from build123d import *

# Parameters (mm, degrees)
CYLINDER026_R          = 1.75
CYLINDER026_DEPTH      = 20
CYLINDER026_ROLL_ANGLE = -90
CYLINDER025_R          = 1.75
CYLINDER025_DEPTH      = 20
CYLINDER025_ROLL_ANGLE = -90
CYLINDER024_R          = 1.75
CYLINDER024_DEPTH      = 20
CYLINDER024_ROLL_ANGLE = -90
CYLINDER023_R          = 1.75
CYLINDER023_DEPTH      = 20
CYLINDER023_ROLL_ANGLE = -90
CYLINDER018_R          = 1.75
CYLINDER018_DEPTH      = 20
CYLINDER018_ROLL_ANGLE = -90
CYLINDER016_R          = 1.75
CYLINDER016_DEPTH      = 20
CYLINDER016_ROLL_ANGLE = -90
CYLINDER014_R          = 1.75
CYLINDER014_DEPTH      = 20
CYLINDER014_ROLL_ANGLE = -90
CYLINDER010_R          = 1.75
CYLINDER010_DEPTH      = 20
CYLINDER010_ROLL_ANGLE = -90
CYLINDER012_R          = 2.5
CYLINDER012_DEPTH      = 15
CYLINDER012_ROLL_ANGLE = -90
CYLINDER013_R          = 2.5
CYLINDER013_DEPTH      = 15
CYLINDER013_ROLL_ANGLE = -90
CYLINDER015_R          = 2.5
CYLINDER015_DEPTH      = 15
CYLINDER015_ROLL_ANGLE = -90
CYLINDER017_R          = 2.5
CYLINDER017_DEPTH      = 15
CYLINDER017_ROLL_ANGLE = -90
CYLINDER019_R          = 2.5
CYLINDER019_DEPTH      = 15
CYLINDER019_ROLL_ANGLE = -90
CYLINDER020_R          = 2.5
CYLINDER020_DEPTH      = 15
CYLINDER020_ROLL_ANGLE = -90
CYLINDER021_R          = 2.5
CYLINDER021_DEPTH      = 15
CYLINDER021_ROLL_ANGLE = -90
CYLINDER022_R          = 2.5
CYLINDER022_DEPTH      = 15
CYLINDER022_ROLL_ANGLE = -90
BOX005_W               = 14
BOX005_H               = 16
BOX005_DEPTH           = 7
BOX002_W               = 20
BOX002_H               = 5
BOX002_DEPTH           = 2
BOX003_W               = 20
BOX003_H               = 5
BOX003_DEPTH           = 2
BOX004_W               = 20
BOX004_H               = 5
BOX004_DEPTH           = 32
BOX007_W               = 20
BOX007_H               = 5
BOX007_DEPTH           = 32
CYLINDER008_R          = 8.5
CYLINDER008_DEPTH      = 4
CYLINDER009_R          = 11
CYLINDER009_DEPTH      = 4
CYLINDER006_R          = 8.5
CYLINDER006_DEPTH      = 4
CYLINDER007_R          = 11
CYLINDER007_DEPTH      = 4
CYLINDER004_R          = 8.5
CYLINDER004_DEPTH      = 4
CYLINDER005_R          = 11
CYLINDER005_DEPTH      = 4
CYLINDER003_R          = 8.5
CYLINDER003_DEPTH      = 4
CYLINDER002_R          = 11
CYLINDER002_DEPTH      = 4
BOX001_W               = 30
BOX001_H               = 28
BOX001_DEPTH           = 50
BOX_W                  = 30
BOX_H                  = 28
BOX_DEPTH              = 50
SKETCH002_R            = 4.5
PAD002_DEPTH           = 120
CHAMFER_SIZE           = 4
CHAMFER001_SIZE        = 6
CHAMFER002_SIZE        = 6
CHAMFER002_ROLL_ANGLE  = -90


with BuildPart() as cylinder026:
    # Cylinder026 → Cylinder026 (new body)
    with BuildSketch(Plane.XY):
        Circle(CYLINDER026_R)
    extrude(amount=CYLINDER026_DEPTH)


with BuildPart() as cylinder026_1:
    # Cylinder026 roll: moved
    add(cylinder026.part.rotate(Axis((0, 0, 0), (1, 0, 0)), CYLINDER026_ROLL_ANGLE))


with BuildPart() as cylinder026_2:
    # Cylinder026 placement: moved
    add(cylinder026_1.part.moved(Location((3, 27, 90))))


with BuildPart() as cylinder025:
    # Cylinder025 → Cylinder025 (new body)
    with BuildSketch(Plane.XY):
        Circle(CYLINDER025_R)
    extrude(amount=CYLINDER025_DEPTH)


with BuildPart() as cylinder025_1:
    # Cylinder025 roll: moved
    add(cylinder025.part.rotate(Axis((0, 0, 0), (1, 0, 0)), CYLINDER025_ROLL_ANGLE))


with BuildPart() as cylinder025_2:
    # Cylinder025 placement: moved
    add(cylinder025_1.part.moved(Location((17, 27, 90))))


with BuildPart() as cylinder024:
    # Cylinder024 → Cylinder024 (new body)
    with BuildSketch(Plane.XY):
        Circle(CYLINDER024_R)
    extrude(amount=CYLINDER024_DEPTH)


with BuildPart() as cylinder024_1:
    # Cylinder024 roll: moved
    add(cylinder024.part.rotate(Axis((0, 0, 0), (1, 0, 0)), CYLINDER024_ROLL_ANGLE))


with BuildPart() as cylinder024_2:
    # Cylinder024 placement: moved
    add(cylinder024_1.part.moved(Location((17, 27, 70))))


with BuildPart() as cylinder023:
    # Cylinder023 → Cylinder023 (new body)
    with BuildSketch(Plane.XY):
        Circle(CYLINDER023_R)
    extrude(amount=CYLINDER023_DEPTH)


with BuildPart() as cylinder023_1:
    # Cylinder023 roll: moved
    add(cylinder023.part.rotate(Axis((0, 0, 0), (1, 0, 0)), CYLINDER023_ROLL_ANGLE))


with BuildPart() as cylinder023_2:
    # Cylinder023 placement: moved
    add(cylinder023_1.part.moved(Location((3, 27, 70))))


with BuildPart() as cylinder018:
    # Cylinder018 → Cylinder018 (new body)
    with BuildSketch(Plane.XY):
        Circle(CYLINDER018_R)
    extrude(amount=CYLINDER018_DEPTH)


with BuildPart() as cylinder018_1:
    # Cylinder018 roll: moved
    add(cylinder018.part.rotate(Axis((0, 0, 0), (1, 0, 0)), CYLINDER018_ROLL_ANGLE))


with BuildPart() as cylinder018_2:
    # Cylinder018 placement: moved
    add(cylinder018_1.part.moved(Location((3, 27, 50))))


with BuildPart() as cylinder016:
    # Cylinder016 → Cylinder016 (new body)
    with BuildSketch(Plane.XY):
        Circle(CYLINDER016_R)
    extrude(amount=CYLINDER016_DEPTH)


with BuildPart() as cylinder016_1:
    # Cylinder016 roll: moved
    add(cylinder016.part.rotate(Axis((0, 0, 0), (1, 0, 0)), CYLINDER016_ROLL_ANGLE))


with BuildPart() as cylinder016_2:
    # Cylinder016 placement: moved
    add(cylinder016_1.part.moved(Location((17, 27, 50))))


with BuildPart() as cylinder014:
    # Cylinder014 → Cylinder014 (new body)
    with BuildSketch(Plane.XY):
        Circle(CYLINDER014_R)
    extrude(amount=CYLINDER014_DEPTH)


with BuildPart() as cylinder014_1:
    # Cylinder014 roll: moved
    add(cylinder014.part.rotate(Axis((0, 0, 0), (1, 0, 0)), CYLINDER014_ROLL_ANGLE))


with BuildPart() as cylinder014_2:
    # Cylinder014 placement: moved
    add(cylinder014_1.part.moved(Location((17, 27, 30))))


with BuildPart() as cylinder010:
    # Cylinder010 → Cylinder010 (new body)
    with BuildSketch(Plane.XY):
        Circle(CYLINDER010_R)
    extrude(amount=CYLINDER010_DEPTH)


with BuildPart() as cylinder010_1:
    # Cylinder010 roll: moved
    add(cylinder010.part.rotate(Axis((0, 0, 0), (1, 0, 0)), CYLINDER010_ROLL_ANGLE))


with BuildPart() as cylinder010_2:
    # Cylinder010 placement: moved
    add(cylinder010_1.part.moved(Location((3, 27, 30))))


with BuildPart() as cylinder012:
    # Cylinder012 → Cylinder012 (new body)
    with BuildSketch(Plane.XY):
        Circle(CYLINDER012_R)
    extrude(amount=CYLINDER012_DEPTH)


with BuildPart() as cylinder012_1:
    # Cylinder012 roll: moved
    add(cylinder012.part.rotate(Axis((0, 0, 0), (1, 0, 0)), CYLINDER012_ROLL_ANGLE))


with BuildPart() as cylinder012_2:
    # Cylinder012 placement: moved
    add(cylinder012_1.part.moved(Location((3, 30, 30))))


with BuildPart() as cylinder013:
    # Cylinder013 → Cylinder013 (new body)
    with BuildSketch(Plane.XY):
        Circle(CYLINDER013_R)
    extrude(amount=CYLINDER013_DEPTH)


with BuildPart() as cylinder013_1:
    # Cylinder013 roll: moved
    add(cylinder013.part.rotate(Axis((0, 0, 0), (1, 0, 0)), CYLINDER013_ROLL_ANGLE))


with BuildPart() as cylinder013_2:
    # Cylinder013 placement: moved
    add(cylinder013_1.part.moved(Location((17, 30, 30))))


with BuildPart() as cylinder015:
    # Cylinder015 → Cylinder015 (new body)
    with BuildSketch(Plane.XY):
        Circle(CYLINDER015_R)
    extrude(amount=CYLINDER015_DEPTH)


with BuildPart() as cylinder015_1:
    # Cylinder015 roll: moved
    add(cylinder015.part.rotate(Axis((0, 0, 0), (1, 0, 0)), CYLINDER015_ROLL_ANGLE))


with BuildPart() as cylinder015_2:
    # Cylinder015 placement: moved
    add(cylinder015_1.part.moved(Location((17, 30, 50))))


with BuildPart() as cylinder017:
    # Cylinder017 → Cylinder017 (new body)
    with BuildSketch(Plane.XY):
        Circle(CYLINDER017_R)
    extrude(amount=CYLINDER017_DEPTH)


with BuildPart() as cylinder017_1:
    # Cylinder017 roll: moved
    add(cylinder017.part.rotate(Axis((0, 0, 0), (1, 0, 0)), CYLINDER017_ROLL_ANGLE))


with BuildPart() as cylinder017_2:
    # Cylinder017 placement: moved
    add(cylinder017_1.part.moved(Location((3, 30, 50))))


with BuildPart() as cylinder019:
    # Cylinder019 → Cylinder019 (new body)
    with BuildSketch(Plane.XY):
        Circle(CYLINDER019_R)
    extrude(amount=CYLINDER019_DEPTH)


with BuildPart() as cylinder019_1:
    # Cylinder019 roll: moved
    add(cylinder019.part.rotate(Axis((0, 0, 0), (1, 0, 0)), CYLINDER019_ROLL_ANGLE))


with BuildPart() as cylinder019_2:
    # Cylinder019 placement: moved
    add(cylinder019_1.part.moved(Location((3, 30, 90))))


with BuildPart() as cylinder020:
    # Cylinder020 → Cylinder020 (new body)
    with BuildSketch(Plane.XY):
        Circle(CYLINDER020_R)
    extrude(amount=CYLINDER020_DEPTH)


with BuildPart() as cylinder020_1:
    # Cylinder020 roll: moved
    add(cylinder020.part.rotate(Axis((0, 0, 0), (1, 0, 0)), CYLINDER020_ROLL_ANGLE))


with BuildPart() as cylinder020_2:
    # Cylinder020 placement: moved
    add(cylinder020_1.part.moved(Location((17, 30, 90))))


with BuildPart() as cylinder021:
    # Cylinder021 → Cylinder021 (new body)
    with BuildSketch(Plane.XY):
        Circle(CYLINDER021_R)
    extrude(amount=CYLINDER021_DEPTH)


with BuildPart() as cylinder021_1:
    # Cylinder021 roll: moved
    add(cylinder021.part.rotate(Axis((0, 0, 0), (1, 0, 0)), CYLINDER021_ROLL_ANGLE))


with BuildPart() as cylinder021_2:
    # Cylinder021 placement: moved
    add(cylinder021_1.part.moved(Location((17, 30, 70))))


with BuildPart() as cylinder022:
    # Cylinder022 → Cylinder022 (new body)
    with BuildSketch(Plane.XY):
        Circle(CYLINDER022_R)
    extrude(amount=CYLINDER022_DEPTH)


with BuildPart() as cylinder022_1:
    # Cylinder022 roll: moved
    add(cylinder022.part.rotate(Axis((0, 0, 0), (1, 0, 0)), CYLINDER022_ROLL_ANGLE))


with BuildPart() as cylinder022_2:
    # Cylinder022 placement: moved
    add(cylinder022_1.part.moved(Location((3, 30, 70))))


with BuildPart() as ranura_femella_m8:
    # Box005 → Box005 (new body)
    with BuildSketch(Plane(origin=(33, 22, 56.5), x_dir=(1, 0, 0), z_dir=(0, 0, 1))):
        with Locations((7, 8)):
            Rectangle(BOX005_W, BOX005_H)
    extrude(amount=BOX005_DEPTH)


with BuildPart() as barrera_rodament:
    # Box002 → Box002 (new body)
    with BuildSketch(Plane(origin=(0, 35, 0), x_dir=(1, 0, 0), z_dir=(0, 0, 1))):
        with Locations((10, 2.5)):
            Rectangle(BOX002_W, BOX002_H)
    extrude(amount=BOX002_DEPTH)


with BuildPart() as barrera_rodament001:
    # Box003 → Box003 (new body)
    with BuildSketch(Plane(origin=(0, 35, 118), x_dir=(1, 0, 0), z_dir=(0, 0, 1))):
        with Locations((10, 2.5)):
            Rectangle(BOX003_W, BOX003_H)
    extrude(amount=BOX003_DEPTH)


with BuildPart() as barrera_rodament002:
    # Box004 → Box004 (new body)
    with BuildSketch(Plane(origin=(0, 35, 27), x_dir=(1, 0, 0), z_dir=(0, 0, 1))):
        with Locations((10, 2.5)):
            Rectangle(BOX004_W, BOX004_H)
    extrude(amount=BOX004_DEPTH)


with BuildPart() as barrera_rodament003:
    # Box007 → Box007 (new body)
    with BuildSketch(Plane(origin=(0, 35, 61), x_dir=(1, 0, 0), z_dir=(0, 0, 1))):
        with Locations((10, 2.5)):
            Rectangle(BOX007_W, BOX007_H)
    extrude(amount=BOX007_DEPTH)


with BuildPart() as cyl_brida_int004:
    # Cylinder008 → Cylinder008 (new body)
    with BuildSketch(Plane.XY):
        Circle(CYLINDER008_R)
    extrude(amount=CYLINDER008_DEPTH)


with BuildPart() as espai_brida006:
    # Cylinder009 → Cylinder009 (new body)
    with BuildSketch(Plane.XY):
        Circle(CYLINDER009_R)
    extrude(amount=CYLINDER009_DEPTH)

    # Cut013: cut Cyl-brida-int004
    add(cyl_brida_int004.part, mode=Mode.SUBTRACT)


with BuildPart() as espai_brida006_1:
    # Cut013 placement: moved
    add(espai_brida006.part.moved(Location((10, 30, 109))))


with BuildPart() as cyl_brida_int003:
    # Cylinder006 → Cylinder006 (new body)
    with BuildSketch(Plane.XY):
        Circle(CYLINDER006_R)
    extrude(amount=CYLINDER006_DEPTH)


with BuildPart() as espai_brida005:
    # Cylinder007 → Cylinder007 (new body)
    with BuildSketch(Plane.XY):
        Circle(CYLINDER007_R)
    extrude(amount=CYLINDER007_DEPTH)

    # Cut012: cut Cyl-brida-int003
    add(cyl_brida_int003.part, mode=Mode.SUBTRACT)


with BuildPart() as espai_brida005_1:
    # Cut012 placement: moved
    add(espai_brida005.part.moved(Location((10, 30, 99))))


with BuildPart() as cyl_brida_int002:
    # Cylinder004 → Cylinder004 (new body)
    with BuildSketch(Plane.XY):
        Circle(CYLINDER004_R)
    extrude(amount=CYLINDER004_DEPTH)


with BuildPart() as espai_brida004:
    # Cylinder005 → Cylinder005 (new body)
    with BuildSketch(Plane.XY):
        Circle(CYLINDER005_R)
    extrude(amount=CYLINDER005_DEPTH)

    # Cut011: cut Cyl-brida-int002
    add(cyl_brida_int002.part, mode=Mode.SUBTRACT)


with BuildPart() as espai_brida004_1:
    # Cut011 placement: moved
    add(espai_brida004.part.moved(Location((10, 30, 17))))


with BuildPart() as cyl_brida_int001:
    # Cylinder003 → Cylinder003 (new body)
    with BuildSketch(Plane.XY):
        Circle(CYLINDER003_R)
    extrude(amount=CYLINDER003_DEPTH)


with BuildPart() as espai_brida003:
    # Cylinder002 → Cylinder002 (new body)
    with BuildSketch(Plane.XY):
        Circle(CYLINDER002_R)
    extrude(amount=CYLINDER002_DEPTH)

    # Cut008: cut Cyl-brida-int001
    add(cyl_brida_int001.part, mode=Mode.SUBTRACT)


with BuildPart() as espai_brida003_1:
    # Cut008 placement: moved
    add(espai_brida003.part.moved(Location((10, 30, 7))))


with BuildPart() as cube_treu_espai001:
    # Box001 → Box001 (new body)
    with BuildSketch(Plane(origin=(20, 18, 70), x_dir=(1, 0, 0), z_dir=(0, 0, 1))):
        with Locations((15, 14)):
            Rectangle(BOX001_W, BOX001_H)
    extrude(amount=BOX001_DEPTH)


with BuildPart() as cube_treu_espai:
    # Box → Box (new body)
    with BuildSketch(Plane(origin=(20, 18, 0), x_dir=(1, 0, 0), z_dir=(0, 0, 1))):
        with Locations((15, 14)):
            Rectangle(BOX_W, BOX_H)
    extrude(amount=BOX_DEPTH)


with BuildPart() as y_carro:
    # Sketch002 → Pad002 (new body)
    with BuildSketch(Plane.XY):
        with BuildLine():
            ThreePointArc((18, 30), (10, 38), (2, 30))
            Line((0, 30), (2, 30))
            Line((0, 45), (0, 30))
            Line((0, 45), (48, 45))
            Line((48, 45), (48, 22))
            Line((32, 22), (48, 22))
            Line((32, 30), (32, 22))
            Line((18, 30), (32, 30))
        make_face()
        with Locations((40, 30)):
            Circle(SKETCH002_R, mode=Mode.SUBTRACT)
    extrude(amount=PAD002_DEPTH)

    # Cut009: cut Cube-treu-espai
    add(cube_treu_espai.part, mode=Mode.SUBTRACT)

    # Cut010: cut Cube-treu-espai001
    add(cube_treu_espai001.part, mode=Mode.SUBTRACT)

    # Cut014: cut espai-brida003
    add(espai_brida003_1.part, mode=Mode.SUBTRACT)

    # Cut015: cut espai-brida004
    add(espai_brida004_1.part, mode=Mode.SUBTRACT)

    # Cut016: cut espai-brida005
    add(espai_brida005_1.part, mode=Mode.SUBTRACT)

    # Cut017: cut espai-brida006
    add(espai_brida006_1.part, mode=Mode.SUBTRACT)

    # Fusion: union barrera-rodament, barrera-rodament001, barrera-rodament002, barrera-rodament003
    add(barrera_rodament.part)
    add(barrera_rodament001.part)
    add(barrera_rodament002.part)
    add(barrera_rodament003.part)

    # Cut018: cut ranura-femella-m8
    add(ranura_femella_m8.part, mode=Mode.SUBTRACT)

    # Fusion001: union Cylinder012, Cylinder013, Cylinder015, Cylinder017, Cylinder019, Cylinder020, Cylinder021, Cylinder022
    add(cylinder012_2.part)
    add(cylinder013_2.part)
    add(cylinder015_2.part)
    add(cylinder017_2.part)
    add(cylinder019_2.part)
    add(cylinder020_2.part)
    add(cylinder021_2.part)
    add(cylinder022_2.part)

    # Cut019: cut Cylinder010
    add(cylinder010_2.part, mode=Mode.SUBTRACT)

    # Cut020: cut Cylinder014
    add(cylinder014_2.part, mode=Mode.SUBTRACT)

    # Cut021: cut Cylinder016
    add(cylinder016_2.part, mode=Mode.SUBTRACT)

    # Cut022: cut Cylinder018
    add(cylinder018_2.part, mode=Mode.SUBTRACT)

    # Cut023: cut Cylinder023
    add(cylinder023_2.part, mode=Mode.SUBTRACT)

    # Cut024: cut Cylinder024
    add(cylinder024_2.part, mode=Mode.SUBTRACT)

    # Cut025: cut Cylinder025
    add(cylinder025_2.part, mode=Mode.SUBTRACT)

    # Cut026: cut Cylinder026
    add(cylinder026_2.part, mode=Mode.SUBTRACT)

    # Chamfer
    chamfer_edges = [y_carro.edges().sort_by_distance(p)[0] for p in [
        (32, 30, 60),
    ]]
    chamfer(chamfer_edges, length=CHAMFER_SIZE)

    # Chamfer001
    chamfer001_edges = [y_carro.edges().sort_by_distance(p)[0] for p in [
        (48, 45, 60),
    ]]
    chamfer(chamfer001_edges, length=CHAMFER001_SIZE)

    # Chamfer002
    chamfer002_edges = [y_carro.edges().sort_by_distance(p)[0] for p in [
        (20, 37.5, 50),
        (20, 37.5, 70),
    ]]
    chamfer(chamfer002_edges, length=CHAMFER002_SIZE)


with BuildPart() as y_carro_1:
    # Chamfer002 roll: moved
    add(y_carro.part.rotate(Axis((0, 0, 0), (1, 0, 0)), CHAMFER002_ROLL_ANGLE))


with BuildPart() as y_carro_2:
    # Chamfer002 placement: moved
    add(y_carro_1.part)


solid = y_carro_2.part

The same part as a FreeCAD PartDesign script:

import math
import FreeCAD as App
import Part
import Sketcher
from FreeCAD import Vector


def edges_at(feature, points):
    """Names of the edges that pass closest to the given points."""
    edges = feature.Shape.Edges
    near = lambda p: min(range(len(edges)), key=lambda i: edges[i].distToShape(Part.Vertex(*p))[0])
    return sorted({f"Edge{near(p) + 1}" for p in points})

doc = App.newDocument("Part")
body = doc.addObject("PartDesign::Body", "Body")

sketch1 = body.newObject("Sketcher::SketchObject", "Sketch")
sketch1.AttachmentSupport = (doc.getObject("XY_Plane"), [""])
sketch1.MapMode = "FlatFace"
sketch1.addGeometry(Part.Circle(Vector(0, 0, 0), Vector(0, 0, 1), 1.75), False)
sketch1.addConstraint([
    Sketcher.Constraint("Coincident", 0, 3, -1, 1),
    Sketcher.Constraint("Diameter", 0, 3.5),
])
pad1 = body.newObject("PartDesign::Pad", "Pad")
pad1.Profile = sketch1
pad1.Length = 20
body2 = doc.addObject("PartDesign::Body", "Body001")
doc.recompute()

body.Placement = App.Placement(Vector(0, 0, 0), App.Rotation(Vector(1, 0, 0), 270))
boolean = body2.newObject("PartDesign::Boolean", "Boolean")
boolean.Type = "Fuse"
boolean.addObjects([body])
body3 = doc.addObject("PartDesign::Body", "Body002")
doc.recompute()

body2.Placement = App.Placement(Vector(3, 27, 90), App.Rotation(Vector(0, 0, 1), 0))
boolean2 = body3.newObject("PartDesign::Boolean", "Boolean001")
boolean2.Type = "Fuse"
boolean2.addObjects([body2])
body4 = doc.addObject("PartDesign::Body", "Body003")

sketch2 = body4.newObject("Sketcher::SketchObject", "Sketch001")
sketch2.AttachmentSupport = (doc.getObject("XY_Plane003"), [""])
sketch2.MapMode = "FlatFace"
sketch2.addGeometry(Part.Circle(Vector(0, 0, 0), Vector(0, 0, 1), 1.75), False)
sketch2.addConstraint([
    Sketcher.Constraint("Coincident", 0, 3, -1, 1),
    Sketcher.Constraint("Diameter", 0, 3.5),
])
pad2 = body4.newObject("PartDesign::Pad", "Pad001")
pad2.Profile = sketch2
pad2.Length = 20
body5 = doc.addObject("PartDesign::Body", "Body004")
doc.recompute()

body4.Placement = App.Placement(Vector(0, 0, 0), App.Rotation(Vector(1, 0, 0), 270))
boolean3 = body5.newObject("PartDesign::Boolean", "Boolean002")
boolean3.Type = "Fuse"
boolean3.addObjects([body4])
body6 = doc.addObject("PartDesign::Body", "Body005")
doc.recompute()

body5.Placement = App.Placement(Vector(17, 27, 90), App.Rotation(Vector(0, 0, 1), 0))
boolean4 = body6.newObject("PartDesign::Boolean", "Boolean003")
boolean4.Type = "Fuse"
boolean4.addObjects([body5])
body7 = doc.addObject("PartDesign::Body", "Body006")

sketch3 = body7.newObject("Sketcher::SketchObject", "Sketch002")
sketch3.AttachmentSupport = (doc.getObject("XY_Plane006"), [""])
sketch3.MapMode = "FlatFace"
sketch3.addGeometry(Part.Circle(Vector(0, 0, 0), Vector(0, 0, 1), 1.75), False)
sketch3.addConstraint([
    Sketcher.Constraint("Coincident", 0, 3, -1, 1),
    Sketcher.Constraint("Diameter", 0, 3.5),
])
pad3 = body7.newObject("PartDesign::Pad", "Pad002")
pad3.Profile = sketch3
pad3.Length = 20
body8 = doc.addObject("PartDesign::Body", "Body007")
doc.recompute()

body7.Placement = App.Placement(Vector(0, 0, 0), App.Rotation(Vector(1, 0, 0), 270))
boolean5 = body8.newObject("PartDesign::Boolean", "Boolean004")
boolean5.Type = "Fuse"
boolean5.addObjects([body7])
body9 = doc.addObject("PartDesign::Body", "Body008")
doc.recompute()

body8.Placement = App.Placement(Vector(17, 27, 70), App.Rotation(Vector(0, 0, 1), 0))
boolean6 = body9.newObject("PartDesign::Boolean", "Boolean005")
boolean6.Type = "Fuse"
boolean6.addObjects([body8])
body10 = doc.addObject("PartDesign::Body", "Body009")

sketch4 = body10.newObject("Sketcher::SketchObject", "Sketch003")
sketch4.AttachmentSupport = (doc.getObject("XY_Plane009"), [""])
sketch4.MapMode = "FlatFace"
sketch4.addGeometry(Part.Circle(Vector(0, 0, 0), Vector(0, 0, 1), 1.75), False)
sketch4.addConstraint([
    Sketcher.Constraint("Coincident", 0, 3, -1, 1),
    Sketcher.Constraint("Diameter", 0, 3.5),
])
pad4 = body10.newObject("PartDesign::Pad", "Pad003")
pad4.Profile = sketch4
pad4.Length = 20
body11 = doc.addObject("PartDesign::Body", "Body010")
doc.recompute()

body10.Placement = App.Placement(Vector(0, 0, 0), App.Rotation(Vector(1, 0, 0), 270))
boolean7 = body11.newObject("PartDesign::Boolean", "Boolean006")
boolean7.Type = "Fuse"
boolean7.addObjects([body10])
body12 = doc.addObject("PartDesign::Body", "Body011")
doc.recompute()

body11.Placement = App.Placement(Vector(3, 27, 70), App.Rotation(Vector(0, 0, 1), 0))
boolean8 = body12.newObject("PartDesign::Boolean", "Boolean007")
boolean8.Type = "Fuse"
boolean8.addObjects([body11])
body13 = doc.addObject("PartDesign::Body", "Body012")

sketch5 = body13.newObject("Sketcher::SketchObject", "Sketch004")
sketch5.AttachmentSupport = (doc.getObject("XY_Plane012"), [""])
sketch5.MapMode = "FlatFace"
sketch5.addGeometry(Part.Circle(Vector(0, 0, 0), Vector(0, 0, 1), 1.75), False)
sketch5.addConstraint([
    Sketcher.Constraint("Coincident", 0, 3, -1, 1),
    Sketcher.Constraint("Diameter", 0, 3.5),
])
pad5 = body13.newObject("PartDesign::Pad", "Pad004")
pad5.Profile = sketch5
pad5.Length = 20
body14 = doc.addObject("PartDesign::Body", "Body013")
doc.recompute()

body13.Placement = App.Placement(Vector(0, 0, 0), App.Rotation(Vector(1, 0, 0), 270))
boolean9 = body14.newObject("PartDesign::Boolean", "Boolean008")
boolean9.Type = "Fuse"
boolean9.addObjects([body13])
body15 = doc.addObject("PartDesign::Body", "Body014")
doc.recompute()

body14.Placement = App.Placement(Vector(3, 27, 50), App.Rotation(Vector(0, 0, 1), 0))
boolean10 = body15.newObject("PartDesign::Boolean", "Boolean009")
boolean10.Type = "Fuse"
boolean10.addObjects([body14])
body16 = doc.addObject("PartDesign::Body", "Body015")

sketch6 = body16.newObject("Sketcher::SketchObject", "Sketch005")
sketch6.AttachmentSupport = (doc.getObject("XY_Plane015"), [""])
sketch6.MapMode = "FlatFace"
sketch6.addGeometry(Part.Circle(Vector(0, 0, 0), Vector(0, 0, 1), 1.75), False)
sketch6.addConstraint([
    Sketcher.Constraint("Coincident", 0, 3, -1, 1),
    Sketcher.Constraint("Diameter", 0, 3.5),
])
pad6 = body16.newObject("PartDesign::Pad", "Pad005")
pad6.Profile = sketch6
pad6.Length = 20
body17 = doc.addObject("PartDesign::Body", "Body016")
doc.recompute()

body16.Placement = App.Placement(Vector(0, 0, 0), App.Rotation(Vector(1, 0, 0), 270))
boolean11 = body17.newObject("PartDesign::Boolean", "Boolean010")
boolean11.Type = "Fuse"
boolean11.addObjects([body16])
body18 = doc.addObject("PartDesign::Body", "Body017")
doc.recompute()

body17.Placement = App.Placement(Vector(17, 27, 50), App.Rotation(Vector(0, 0, 1), 0))
boolean12 = body18.newObject("PartDesign::Boolean", "Boolean011")
boolean12.Type = "Fuse"
boolean12.addObjects([body17])
body19 = doc.addObject("PartDesign::Body", "Body018")

sketch7 = body19.newObject("Sketcher::SketchObject", "Sketch006")
sketch7.AttachmentSupport = (doc.getObject("XY_Plane018"), [""])
sketch7.MapMode = "FlatFace"
sketch7.addGeometry(Part.Circle(Vector(0, 0, 0), Vector(0, 0, 1), 1.75), False)
sketch7.addConstraint([
    Sketcher.Constraint("Coincident", 0, 3, -1, 1),
    Sketcher.Constraint("Diameter", 0, 3.5),
])
pad7 = body19.newObject("PartDesign::Pad", "Pad006")
pad7.Profile = sketch7
pad7.Length = 20
body20 = doc.addObject("PartDesign::Body", "Body019")
doc.recompute()

body19.Placement = App.Placement(Vector(0, 0, 0), App.Rotation(Vector(1, 0, 0), 270))
boolean13 = body20.newObject("PartDesign::Boolean", "Boolean012")
boolean13.Type = "Fuse"
boolean13.addObjects([body19])
body21 = doc.addObject("PartDesign::Body", "Body020")
doc.recompute()

body20.Placement = App.Placement(Vector(17, 27, 30), App.Rotation(Vector(0, 0, 1), 0))
boolean14 = body21.newObject("PartDesign::Boolean", "Boolean013")
boolean14.Type = "Fuse"
boolean14.addObjects([body20])
body22 = doc.addObject("PartDesign::Body", "Body021")

sketch8 = body22.newObject("Sketcher::SketchObject", "Sketch007")
sketch8.AttachmentSupport = (doc.getObject("XY_Plane021"), [""])
sketch8.MapMode = "FlatFace"
sketch8.addGeometry(Part.Circle(Vector(0, 0, 0), Vector(0, 0, 1), 1.75), False)
sketch8.addConstraint([
    Sketcher.Constraint("Coincident", 0, 3, -1, 1),
    Sketcher.Constraint("Diameter", 0, 3.5),
])
pad8 = body22.newObject("PartDesign::Pad", "Pad007")
pad8.Profile = sketch8
pad8.Length = 20
body23 = doc.addObject("PartDesign::Body", "Body022")
doc.recompute()

body22.Placement = App.Placement(Vector(0, 0, 0), App.Rotation(Vector(1, 0, 0), 270))
boolean15 = body23.newObject("PartDesign::Boolean", "Boolean014")
boolean15.Type = "Fuse"
boolean15.addObjects([body22])
body24 = doc.addObject("PartDesign::Body", "Body023")
doc.recompute()

body23.Placement = App.Placement(Vector(3, 27, 30), App.Rotation(Vector(0, 0, 1), 0))
boolean16 = body24.newObject("PartDesign::Boolean", "Boolean015")
boolean16.Type = "Fuse"
boolean16.addObjects([body23])
body25 = doc.addObject("PartDesign::Body", "Body024")

sketch9 = body25.newObject("Sketcher::SketchObject", "Sketch008")
sketch9.AttachmentSupport = (doc.getObject("XY_Plane024"), [""])
sketch9.MapMode = "FlatFace"
sketch9.addGeometry(Part.Circle(Vector(0, 0, 0), Vector(0, 0, 1), 2.5), False)
sketch9.addConstraint([
    Sketcher.Constraint("Coincident", 0, 3, -1, 1),
    Sketcher.Constraint("Diameter", 0, 5.0),
])
pad9 = body25.newObject("PartDesign::Pad", "Pad008")
pad9.Profile = sketch9
pad9.Length = 15
body26 = doc.addObject("PartDesign::Body", "Body025")
doc.recompute()

body25.Placement = App.Placement(Vector(0, 0, 0), App.Rotation(Vector(1, 0, 0), 270))
boolean17 = body26.newObject("PartDesign::Boolean", "Boolean016")
boolean17.Type = "Fuse"
boolean17.addObjects([body25])
body27 = doc.addObject("PartDesign::Body", "Body026")
doc.recompute()

body26.Placement = App.Placement(Vector(3, 30, 30), App.Rotation(Vector(0, 0, 1), 0))
boolean18 = body27.newObject("PartDesign::Boolean", "Boolean017")
boolean18.Type = "Fuse"
boolean18.addObjects([body26])
body28 = doc.addObject("PartDesign::Body", "Body027")

sketch10 = body28.newObject("Sketcher::SketchObject", "Sketch009")
sketch10.AttachmentSupport = (doc.getObject("XY_Plane027"), [""])
sketch10.MapMode = "FlatFace"
sketch10.addGeometry(Part.Circle(Vector(0, 0, 0), Vector(0, 0, 1), 2.5), False)
sketch10.addConstraint([
    Sketcher.Constraint("Coincident", 0, 3, -1, 1),
    Sketcher.Constraint("Diameter", 0, 5.0),
])
pad10 = body28.newObject("PartDesign::Pad", "Pad009")
pad10.Profile = sketch10
pad10.Length = 15
body29 = doc.addObject("PartDesign::Body", "Body028")
doc.recompute()

body28.Placement = App.Placement(Vector(0, 0, 0), App.Rotation(Vector(1, 0, 0), 270))
boolean19 = body29.newObject("PartDesign::Boolean", "Boolean018")
boolean19.Type = "Fuse"
boolean19.addObjects([body28])
body30 = doc.addObject("PartDesign::Body", "Body029")
doc.recompute()

body29.Placement = App.Placement(Vector(17, 30, 30), App.Rotation(Vector(0, 0, 1), 0))
boolean20 = body30.newObject("PartDesign::Boolean", "Boolean019")
boolean20.Type = "Fuse"
boolean20.addObjects([body29])
body31 = doc.addObject("PartDesign::Body", "Body030")

sketch11 = body31.newObject("Sketcher::SketchObject", "Sketch010")
sketch11.AttachmentSupport = (doc.getObject("XY_Plane030"), [""])
sketch11.MapMode = "FlatFace"
sketch11.addGeometry(Part.Circle(Vector(0, 0, 0), Vector(0, 0, 1), 2.5), False)
sketch11.addConstraint([
    Sketcher.Constraint("Coincident", 0, 3, -1, 1),
    Sketcher.Constraint("Diameter", 0, 5.0),
])
pad11 = body31.newObject("PartDesign::Pad", "Pad010")
pad11.Profile = sketch11
pad11.Length = 15
body32 = doc.addObject("PartDesign::Body", "Body031")
doc.recompute()

body31.Placement = App.Placement(Vector(0, 0, 0), App.Rotation(Vector(1, 0, 0), 270))
boolean21 = body32.newObject("PartDesign::Boolean", "Boolean020")
boolean21.Type = "Fuse"
boolean21.addObjects([body31])
body33 = doc.addObject("PartDesign::Body", "Body032")
doc.recompute()

body32.Placement = App.Placement(Vector(17, 30, 50), App.Rotation(Vector(0, 0, 1), 0))
boolean22 = body33.newObject("PartDesign::Boolean", "Boolean021")
boolean22.Type = "Fuse"
boolean22.addObjects([body32])
body34 = doc.addObject("PartDesign::Body", "Body033")

sketch12 = body34.newObject("Sketcher::SketchObject", "Sketch011")
sketch12.AttachmentSupport = (doc.getObject("XY_Plane033"), [""])
sketch12.MapMode = "FlatFace"
sketch12.addGeometry(Part.Circle(Vector(0, 0, 0), Vector(0, 0, 1), 2.5), False)
sketch12.addConstraint([
    Sketcher.Constraint("Coincident", 0, 3, -1, 1),
    Sketcher.Constraint("Diameter", 0, 5.0),
])
pad12 = body34.newObject("PartDesign::Pad", "Pad011")
pad12.Profile = sketch12
pad12.Length = 15
body35 = doc.addObject("PartDesign::Body", "Body034")
doc.recompute()

body34.Placement = App.Placement(Vector(0, 0, 0), App.Rotation(Vector(1, 0, 0), 270))
boolean23 = body35.newObject("PartDesign::Boolean", "Boolean022")
boolean23.Type = "Fuse"
boolean23.addObjects([body34])
body36 = doc.addObject("PartDesign::Body", "Body035")
doc.recompute()

body35.Placement = App.Placement(Vector(3, 30, 50), App.Rotation(Vector(0, 0, 1), 0))
boolean24 = body36.newObject("PartDesign::Boolean", "Boolean023")
boolean24.Type = "Fuse"
boolean24.addObjects([body35])
body37 = doc.addObject("PartDesign::Body", "Body036")

sketch13 = body37.newObject("Sketcher::SketchObject", "Sketch012")
sketch13.AttachmentSupport = (doc.getObject("XY_Plane036"), [""])
sketch13.MapMode = "FlatFace"
sketch13.addGeometry(Part.Circle(Vector(0, 0, 0), Vector(0, 0, 1), 2.5), False)
sketch13.addConstraint([
    Sketcher.Constraint("Coincident", 0, 3, -1, 1),
    Sketcher.Constraint("Diameter", 0, 5.0),
])
pad13 = body37.newObject("PartDesign::Pad", "Pad012")
pad13.Profile = sketch13
pad13.Length = 15
body38 = doc.addObject("PartDesign::Body", "Body037")
doc.recompute()

body37.Placement = App.Placement(Vector(0, 0, 0), App.Rotation(Vector(1, 0, 0), 270))
boolean25 = body38.newObject("PartDesign::Boolean", "Boolean024")
boolean25.Type = "Fuse"
boolean25.addObjects([body37])
body39 = doc.addObject("PartDesign::Body", "Body038")
doc.recompute()

body38.Placement = App.Placement(Vector(3, 30, 90), App.Rotation(Vector(0, 0, 1), 0))
boolean26 = body39.newObject("PartDesign::Boolean", "Boolean025")
boolean26.Type = "Fuse"
boolean26.addObjects([body38])
body40 = doc.addObject("PartDesign::Body", "Body039")

sketch14 = body40.newObject("Sketcher::SketchObject", "Sketch013")
sketch14.AttachmentSupport = (doc.getObject("XY_Plane039"), [""])
sketch14.MapMode = "FlatFace"
sketch14.addGeometry(Part.Circle(Vector(0, 0, 0), Vector(0, 0, 1), 2.5), False)
sketch14.addConstraint([
    Sketcher.Constraint("Coincident", 0, 3, -1, 1),
    Sketcher.Constraint("Diameter", 0, 5.0),
])
pad14 = body40.newObject("PartDesign::Pad", "Pad013")
pad14.Profile = sketch14
pad14.Length = 15
body41 = doc.addObject("PartDesign::Body", "Body040")
doc.recompute()

body40.Placement = App.Placement(Vector(0, 0, 0), App.Rotation(Vector(1, 0, 0), 270))
boolean27 = body41.newObject("PartDesign::Boolean", "Boolean026")
boolean27.Type = "Fuse"
boolean27.addObjects([body40])
body42 = doc.addObject("PartDesign::Body", "Body041")
doc.recompute()

body41.Placement = App.Placement(Vector(17, 30, 90), App.Rotation(Vector(0, 0, 1), 0))
boolean28 = body42.newObject("PartDesign::Boolean", "Boolean027")
boolean28.Type = "Fuse"
boolean28.addObjects([body41])
body43 = doc.addObject("PartDesign::Body", "Body042")

sketch15 = body43.newObject("Sketcher::SketchObject", "Sketch014")
sketch15.AttachmentSupport = (doc.getObject("XY_Plane042"), [""])
sketch15.MapMode = "FlatFace"
sketch15.addGeometry(Part.Circle(Vector(0, 0, 0), Vector(0, 0, 1), 2.5), False)
sketch15.addConstraint([
    Sketcher.Constraint("Coincident", 0, 3, -1, 1),
    Sketcher.Constraint("Diameter", 0, 5.0),
])
pad15 = body43.newObject("PartDesign::Pad", "Pad014")
pad15.Profile = sketch15
pad15.Length = 15
body44 = doc.addObject("PartDesign::Body", "Body043")
doc.recompute()

body43.Placement = App.Placement(Vector(0, 0, 0), App.Rotation(Vector(1, 0, 0), 270))
boolean29 = body44.newObject("PartDesign::Boolean", "Boolean028")
boolean29.Type = "Fuse"
boolean29.addObjects([body43])
body45 = doc.addObject("PartDesign::Body", "Body044")
doc.recompute()

body44.Placement = App.Placement(Vector(17, 30, 70), App.Rotation(Vector(0, 0, 1), 0))
boolean30 = body45.newObject("PartDesign::Boolean", "Boolean029")
boolean30.Type = "Fuse"
boolean30.addObjects([body44])
body46 = doc.addObject("PartDesign::Body", "Body045")

sketch16 = body46.newObject("Sketcher::SketchObject", "Sketch015")
sketch16.AttachmentSupport = (doc.getObject("XY_Plane045"), [""])
sketch16.MapMode = "FlatFace"
sketch16.addGeometry(Part.Circle(Vector(0, 0, 0), Vector(0, 0, 1), 2.5), False)
sketch16.addConstraint([
    Sketcher.Constraint("Coincident", 0, 3, -1, 1),
    Sketcher.Constraint("Diameter", 0, 5.0),
])
pad16 = body46.newObject("PartDesign::Pad", "Pad015")
pad16.Profile = sketch16
pad16.Length = 15
body47 = doc.addObject("PartDesign::Body", "Body046")
doc.recompute()

body46.Placement = App.Placement(Vector(0, 0, 0), App.Rotation(Vector(1, 0, 0), 270))
boolean31 = body47.newObject("PartDesign::Boolean", "Boolean030")
boolean31.Type = "Fuse"
boolean31.addObjects([body46])
body48 = doc.addObject("PartDesign::Body", "Body047")
doc.recompute()

body47.Placement = App.Placement(Vector(3, 30, 70), App.Rotation(Vector(0, 0, 1), 0))
boolean32 = body48.newObject("PartDesign::Boolean", "Boolean031")
boolean32.Type = "Fuse"
boolean32.addObjects([body47])
body49 = doc.addObject("PartDesign::Body", "Body048")

sketch17 = body49.newObject("Sketcher::SketchObject", "Sketch016")
sketch17.AttachmentSupport = (doc.getObject("XY_Plane048"), [""])
sketch17.MapMode = "FlatFace"
sketch17.AttachmentOffset = App.Placement(Vector(0, 0, 56.5), App.Rotation())
sketch17.addGeometry([
    Part.LineSegment(Vector(33, 38, 0), Vector(33, 22, 0)),
    Part.LineSegment(Vector(33, 22, 0), Vector(47, 22, 0)),
    Part.LineSegment(Vector(47, 22, 0), Vector(47, 38, 0)),
    Part.LineSegment(Vector(47, 38, 0), Vector(33, 38, 0)),
], False)
sketch17.addConstraint([
    Sketcher.Constraint("Coincident", 0, 2, 1, 1),
    Sketcher.Constraint("Coincident", 1, 2, 2, 1),
    Sketcher.Constraint("Coincident", 2, 2, 3, 1),
    Sketcher.Constraint("Coincident", 3, 2, 0, 1),
    Sketcher.Constraint("Vertical", 0),
    Sketcher.Constraint("Horizontal", 1),
    Sketcher.Constraint("Vertical", 2),
    Sketcher.Constraint("Horizontal", 3),
    Sketcher.Constraint("DistanceX", 1, 1, 1, 2, 14.0),
    Sketcher.Constraint("DistanceY", 0, 2, 0, 1, 16.0),
    Sketcher.Constraint("DistanceX", -1, 1, 0, 2, 33.0),
    Sketcher.Constraint("DistanceY", -1, 1, 0, 2, 22.0),
])
pad17 = body49.newObject("PartDesign::Pad", "Pad016")
pad17.Profile = sketch17
pad17.Length = 7
body50 = doc.addObject("PartDesign::Body", "Body049")

sketch18 = body50.newObject("Sketcher::SketchObject", "Sketch017")
sketch18.AttachmentSupport = (doc.getObject("XY_Plane049"), [""])
sketch18.MapMode = "FlatFace"
sketch18.addGeometry([
    Part.LineSegment(Vector(0, 40, 0), Vector(0, 35, 0)),
    Part.LineSegment(Vector(0, 35, 0), Vector(20, 35, 0)),
    Part.LineSegment(Vector(20, 35, 0), Vector(20, 40, 0)),
    Part.LineSegment(Vector(20, 40, 0), Vector(0, 40, 0)),
], False)
sketch18.addConstraint([
    Sketcher.Constraint("Coincident", 0, 2, 1, 1),
    Sketcher.Constraint("Coincident", 1, 2, 2, 1),
    Sketcher.Constraint("Coincident", 2, 2, 3, 1),
    Sketcher.Constraint("Coincident", 3, 2, 0, 1),
    Sketcher.Constraint("Vertical", 0),
    Sketcher.Constraint("Horizontal", 1),
    Sketcher.Constraint("Vertical", 2),
    Sketcher.Constraint("Horizontal", 3),
    Sketcher.Constraint("PointOnObject", 0, 2, -2),
    Sketcher.Constraint("DistanceX", 1, 1, 1, 2, 20.0),
    Sketcher.Constraint("DistanceY", 0, 2, 0, 1, 5.0),
    Sketcher.Constraint("DistanceY", -1, 1, 0, 2, 35.0),
])
pad18 = body50.newObject("PartDesign::Pad", "Pad017")
pad18.Profile = sketch18
pad18.Length = 2
body51 = doc.addObject("PartDesign::Body", "Body050")

sketch19 = body51.newObject("Sketcher::SketchObject", "Sketch018")
sketch19.AttachmentSupport = (doc.getObject("XY_Plane050"), [""])
sketch19.MapMode = "FlatFace"
sketch19.AttachmentOffset = App.Placement(Vector(0, 0, 118), App.Rotation())
sketch19.addGeometry([
    Part.LineSegment(Vector(0, 40, 0), Vector(0, 35, 0)),
    Part.LineSegment(Vector(0, 35, 0), Vector(20, 35, 0)),
    Part.LineSegment(Vector(20, 35, 0), Vector(20, 40, 0)),
    Part.LineSegment(Vector(20, 40, 0), Vector(0, 40, 0)),
], False)
sketch19.addConstraint([
    Sketcher.Constraint("Coincident", 0, 2, 1, 1),
    Sketcher.Constraint("Coincident", 1, 2, 2, 1),
    Sketcher.Constraint("Coincident", 2, 2, 3, 1),
    Sketcher.Constraint("Coincident", 3, 2, 0, 1),
    Sketcher.Constraint("Vertical", 0),
    Sketcher.Constraint("Horizontal", 1),
    Sketcher.Constraint("Vertical", 2),
    Sketcher.Constraint("Horizontal", 3),
    Sketcher.Constraint("PointOnObject", 0, 2, -2),
    Sketcher.Constraint("DistanceX", 1, 1, 1, 2, 20.0),
    Sketcher.Constraint("DistanceY", 0, 2, 0, 1, 5.0),
    Sketcher.Constraint("DistanceY", -1, 1, 0, 2, 35.0),
])
pad19 = body51.newObject("PartDesign::Pad", "Pad018")
pad19.Profile = sketch19
pad19.Length = 2
body52 = doc.addObject("PartDesign::Body", "Body051")

sketch20 = body52.newObject("Sketcher::SketchObject", "Sketch019")
sketch20.AttachmentSupport = (doc.getObject("XY_Plane051"), [""])
sketch20.MapMode = "FlatFace"
sketch20.AttachmentOffset = App.Placement(Vector(0, 0, 27), App.Rotation())
sketch20.addGeometry([
    Part.LineSegment(Vector(0, 40, 0), Vector(0, 35, 0)),
    Part.LineSegment(Vector(0, 35, 0), Vector(20, 35, 0)),
    Part.LineSegment(Vector(20, 35, 0), Vector(20, 40, 0)),
    Part.LineSegment(Vector(20, 40, 0), Vector(0, 40, 0)),
], False)
sketch20.addConstraint([
    Sketcher.Constraint("Coincident", 0, 2, 1, 1),
    Sketcher.Constraint("Coincident", 1, 2, 2, 1),
    Sketcher.Constraint("Coincident", 2, 2, 3, 1),
    Sketcher.Constraint("Coincident", 3, 2, 0, 1),
    Sketcher.Constraint("Vertical", 0),
    Sketcher.Constraint("Horizontal", 1),
    Sketcher.Constraint("Vertical", 2),
    Sketcher.Constraint("Horizontal", 3),
    Sketcher.Constraint("PointOnObject", 0, 2, -2),
    Sketcher.Constraint("DistanceX", 1, 1, 1, 2, 20.0),
    Sketcher.Constraint("DistanceY", 0, 2, 0, 1, 5.0),
    Sketcher.Constraint("DistanceY", -1, 1, 0, 2, 35.0),
])
pad20 = body52.newObject("PartDesign::Pad", "Pad019")
pad20.Profile = sketch20
pad20.Length = 32
body53 = doc.addObject("PartDesign::Body", "Body052")

sketch21 = body53.newObject("Sketcher::SketchObject", "Sketch020")
sketch21.AttachmentSupport = (doc.getObject("XY_Plane052"), [""])
sketch21.MapMode = "FlatFace"
sketch21.AttachmentOffset = App.Placement(Vector(0, 0, 61), App.Rotation())
sketch21.addGeometry([
    Part.LineSegment(Vector(0, 40, 0), Vector(0, 35, 0)),
    Part.LineSegment(Vector(0, 35, 0), Vector(20, 35, 0)),
    Part.LineSegment(Vector(20, 35, 0), Vector(20, 40, 0)),
    Part.LineSegment(Vector(20, 40, 0), Vector(0, 40, 0)),
], False)
sketch21.addConstraint([
    Sketcher.Constraint("Coincident", 0, 2, 1, 1),
    Sketcher.Constraint("Coincident", 1, 2, 2, 1),
    Sketcher.Constraint("Coincident", 2, 2, 3, 1),
    Sketcher.Constraint("Coincident", 3, 2, 0, 1),
    Sketcher.Constraint("Vertical", 0),
    Sketcher.Constraint("Horizontal", 1),
    Sketcher.Constraint("Vertical", 2),
    Sketcher.Constraint("Horizontal", 3),
    Sketcher.Constraint("PointOnObject", 0, 2, -2),
    Sketcher.Constraint("DistanceX", 1, 1, 1, 2, 20.0),
    Sketcher.Constraint("DistanceY", 0, 2, 0, 1, 5.0),
    Sketcher.Constraint("DistanceY", -1, 1, 0, 2, 35.0),
])
pad21 = body53.newObject("PartDesign::Pad", "Pad020")
pad21.Profile = sketch21
pad21.Length = 32
body54 = doc.addObject("PartDesign::Body", "Body053")

sketch22 = body54.newObject("Sketcher::SketchObject", "Sketch021")
sketch22.AttachmentSupport = (doc.getObject("XY_Plane053"), [""])
sketch22.MapMode = "FlatFace"
sketch22.addGeometry(Part.Circle(Vector(0, 0, 0), Vector(0, 0, 1), 8.5), False)
sketch22.addConstraint([
    Sketcher.Constraint("Coincident", 0, 3, -1, 1),
    Sketcher.Constraint("Diameter", 0, 17.0),
])
pad22 = body54.newObject("PartDesign::Pad", "Pad021")
pad22.Profile = sketch22
pad22.Length = 4
body55 = doc.addObject("PartDesign::Body", "Body054")

sketch23 = body55.newObject("Sketcher::SketchObject", "Sketch022")
sketch23.AttachmentSupport = (doc.getObject("XY_Plane054"), [""])
sketch23.MapMode = "FlatFace"
sketch23.addGeometry(Part.Circle(Vector(0, 0, 0), Vector(0, 0, 1), 11), False)
sketch23.addConstraint([
    Sketcher.Constraint("Coincident", 0, 3, -1, 1),
    Sketcher.Constraint("Diameter", 0, 22.0),
])
pad23 = body55.newObject("PartDesign::Pad", "Pad022")
pad23.Profile = sketch23
pad23.Length = 4
doc.recompute()

boolean33 = body55.newObject("PartDesign::Boolean", "Boolean032")
boolean33.Type = "Cut"
boolean33.addObjects([body54])
body56 = doc.addObject("PartDesign::Body", "Body055")
doc.recompute()

body55.Placement = App.Placement(Vector(10, 30, 109), App.Rotation(Vector(0, 0, 1), 0))
boolean34 = body56.newObject("PartDesign::Boolean", "Boolean033")
boolean34.Type = "Fuse"
boolean34.addObjects([body55])
body57 = doc.addObject("PartDesign::Body", "Body056")

sketch24 = body57.newObject("Sketcher::SketchObject", "Sketch023")
sketch24.AttachmentSupport = (doc.getObject("XY_Plane056"), [""])
sketch24.MapMode = "FlatFace"
sketch24.addGeometry(Part.Circle(Vector(0, 0, 0), Vector(0, 0, 1), 8.5), False)
sketch24.addConstraint([
    Sketcher.Constraint("Coincident", 0, 3, -1, 1),
    Sketcher.Constraint("Diameter", 0, 17.0),
])
pad24 = body57.newObject("PartDesign::Pad", "Pad023")
pad24.Profile = sketch24
pad24.Length = 4
body58 = doc.addObject("PartDesign::Body", "Body057")

sketch25 = body58.newObject("Sketcher::SketchObject", "Sketch024")
sketch25.AttachmentSupport = (doc.getObject("XY_Plane057"), [""])
sketch25.MapMode = "FlatFace"
sketch25.addGeometry(Part.Circle(Vector(0, 0, 0), Vector(0, 0, 1), 11), False)
sketch25.addConstraint([
    Sketcher.Constraint("Coincident", 0, 3, -1, 1),
    Sketcher.Constraint("Diameter", 0, 22.0),
])
pad25 = body58.newObject("PartDesign::Pad", "Pad024")
pad25.Profile = sketch25
pad25.Length = 4
doc.recompute()

boolean35 = body58.newObject("PartDesign::Boolean", "Boolean034")
boolean35.Type = "Cut"
boolean35.addObjects([body57])
body59 = doc.addObject("PartDesign::Body", "Body058")
doc.recompute()

body58.Placement = App.Placement(Vector(10, 30, 99), App.Rotation(Vector(0, 0, 1), 0))
boolean36 = body59.newObject("PartDesign::Boolean", "Boolean035")
boolean36.Type = "Fuse"
boolean36.addObjects([body58])
body60 = doc.addObject("PartDesign::Body", "Body059")

sketch26 = body60.newObject("Sketcher::SketchObject", "Sketch025")
sketch26.AttachmentSupport = (doc.getObject("XY_Plane059"), [""])
sketch26.MapMode = "FlatFace"
sketch26.addGeometry(Part.Circle(Vector(0, 0, 0), Vector(0, 0, 1), 8.5), False)
sketch26.addConstraint([
    Sketcher.Constraint("Coincident", 0, 3, -1, 1),
    Sketcher.Constraint("Diameter", 0, 17.0),
])
pad26 = body60.newObject("PartDesign::Pad", "Pad025")
pad26.Profile = sketch26
pad26.Length = 4
body61 = doc.addObject("PartDesign::Body", "Body060")

sketch27 = body61.newObject("Sketcher::SketchObject", "Sketch026")
sketch27.AttachmentSupport = (doc.getObject("XY_Plane060"), [""])
sketch27.MapMode = "FlatFace"
sketch27.addGeometry(Part.Circle(Vector(0, 0, 0), Vector(0, 0, 1), 11), False)
sketch27.addConstraint([
    Sketcher.Constraint("Coincident", 0, 3, -1, 1),
    Sketcher.Constraint("Diameter", 0, 22.0),
])
pad27 = body61.newObject("PartDesign::Pad", "Pad026")
pad27.Profile = sketch27
pad27.Length = 4
doc.recompute()

boolean37 = body61.newObject("PartDesign::Boolean", "Boolean036")
boolean37.Type = "Cut"
boolean37.addObjects([body60])
body62 = doc.addObject("PartDesign::Body", "Body061")
doc.recompute()

body61.Placement = App.Placement(Vector(10, 30, 17), App.Rotation(Vector(0, 0, 1), 0))
boolean38 = body62.newObject("PartDesign::Boolean", "Boolean037")
boolean38.Type = "Fuse"
boolean38.addObjects([body61])
body63 = doc.addObject("PartDesign::Body", "Body062")

sketch28 = body63.newObject("Sketcher::SketchObject", "Sketch027")
sketch28.AttachmentSupport = (doc.getObject("XY_Plane062"), [""])
sketch28.MapMode = "FlatFace"
sketch28.addGeometry(Part.Circle(Vector(0, 0, 0), Vector(0, 0, 1), 8.5), False)
sketch28.addConstraint([
    Sketcher.Constraint("Coincident", 0, 3, -1, 1),
    Sketcher.Constraint("Diameter", 0, 17.0),
])
pad28 = body63.newObject("PartDesign::Pad", "Pad027")
pad28.Profile = sketch28
pad28.Length = 4
body64 = doc.addObject("PartDesign::Body", "Body063")

sketch29 = body64.newObject("Sketcher::SketchObject", "Sketch028")
sketch29.AttachmentSupport = (doc.getObject("XY_Plane063"), [""])
sketch29.MapMode = "FlatFace"
sketch29.addGeometry(Part.Circle(Vector(0, 0, 0), Vector(0, 0, 1), 11), False)
sketch29.addConstraint([
    Sketcher.Constraint("Coincident", 0, 3, -1, 1),
    Sketcher.Constraint("Diameter", 0, 22.0),
])
pad29 = body64.newObject("PartDesign::Pad", "Pad028")
pad29.Profile = sketch29
pad29.Length = 4
doc.recompute()

boolean39 = body64.newObject("PartDesign::Boolean", "Boolean038")
boolean39.Type = "Cut"
boolean39.addObjects([body63])
body65 = doc.addObject("PartDesign::Body", "Body064")
doc.recompute()

body64.Placement = App.Placement(Vector(10, 30, 7), App.Rotation(Vector(0, 0, 1), 0))
boolean40 = body65.newObject("PartDesign::Boolean", "Boolean039")
boolean40.Type = "Fuse"
boolean40.addObjects([body64])
body66 = doc.addObject("PartDesign::Body", "Body065")

sketch30 = body66.newObject("Sketcher::SketchObject", "Sketch029")
sketch30.AttachmentSupport = (doc.getObject("XY_Plane065"), [""])
sketch30.MapMode = "FlatFace"
sketch30.AttachmentOffset = App.Placement(Vector(0, 0, 70), App.Rotation())
sketch30.addGeometry([
    Part.LineSegment(Vector(20, 46, 0), Vector(20, 18, 0)),
    Part.LineSegment(Vector(20, 18, 0), Vector(50, 18, 0)),
    Part.LineSegment(Vector(50, 18, 0), Vector(50, 46, 0)),
    Part.LineSegment(Vector(50, 46, 0), Vector(20, 46, 0)),
], False)
sketch30.addConstraint([
    Sketcher.Constraint("Coincident", 0, 2, 1, 1),
    Sketcher.Constraint("Coincident", 1, 2, 2, 1),
    Sketcher.Constraint("Coincident", 2, 2, 3, 1),
    Sketcher.Constraint("Coincident", 3, 2, 0, 1),
    Sketcher.Constraint("Vertical", 0),
    Sketcher.Constraint("Horizontal", 1),
    Sketcher.Constraint("Vertical", 2),
    Sketcher.Constraint("Horizontal", 3),
    Sketcher.Constraint("DistanceX", 1, 1, 1, 2, 30.0),
    Sketcher.Constraint("DistanceY", 0, 2, 0, 1, 28.0),
    Sketcher.Constraint("DistanceX", -1, 1, 0, 2, 20.0),
    Sketcher.Constraint("DistanceY", -1, 1, 0, 2, 18.0),
])
pad30 = body66.newObject("PartDesign::Pad", "Pad029")
pad30.Profile = sketch30
pad30.Length = 50
body67 = doc.addObject("PartDesign::Body", "Body066")

sketch31 = body67.newObject("Sketcher::SketchObject", "Sketch030")
sketch31.AttachmentSupport = (doc.getObject("XY_Plane066"), [""])
sketch31.MapMode = "FlatFace"
sketch31.addGeometry([
    Part.LineSegment(Vector(20, 46, 0), Vector(20, 18, 0)),
    Part.LineSegment(Vector(20, 18, 0), Vector(50, 18, 0)),
    Part.LineSegment(Vector(50, 18, 0), Vector(50, 46, 0)),
    Part.LineSegment(Vector(50, 46, 0), Vector(20, 46, 0)),
], False)
sketch31.addConstraint([
    Sketcher.Constraint("Coincident", 0, 2, 1, 1),
    Sketcher.Constraint("Coincident", 1, 2, 2, 1),
    Sketcher.Constraint("Coincident", 2, 2, 3, 1),
    Sketcher.Constraint("Coincident", 3, 2, 0, 1),
    Sketcher.Constraint("Vertical", 0),
    Sketcher.Constraint("Horizontal", 1),
    Sketcher.Constraint("Vertical", 2),
    Sketcher.Constraint("Horizontal", 3),
    Sketcher.Constraint("DistanceX", 1, 1, 1, 2, 30.0),
    Sketcher.Constraint("DistanceY", 0, 2, 0, 1, 28.0),
    Sketcher.Constraint("DistanceX", -1, 1, 0, 2, 20.0),
    Sketcher.Constraint("DistanceY", -1, 1, 0, 2, 18.0),
])
pad31 = body67.newObject("PartDesign::Pad", "Pad030")
pad31.Profile = sketch31
pad31.Length = 50
body68 = doc.addObject("PartDesign::Body", "Body067")

sketch32 = body68.newObject("Sketcher::SketchObject", "Sketch031")
sketch32.AttachmentSupport = (doc.getObject("XY_Plane067"), [""])
sketch32.MapMode = "FlatFace"
sketch32.addGeometry([
    Part.ArcOfCircle(Part.Circle(Vector(10, 30, 0), Vector(0, 0, 1), 8), math.radians(0), math.radians(180)),
    Part.LineSegment(Vector(18, 30, 0), Vector(32, 30, 0)),
    Part.LineSegment(Vector(32, 30, 0), Vector(32, 22, 0)),
    Part.LineSegment(Vector(32, 22, 0), Vector(48, 22, 0)),
    Part.LineSegment(Vector(48, 22, 0), Vector(48, 45, 0)),
    Part.LineSegment(Vector(48, 45, 0), Vector(0, 45, 0)),
    Part.LineSegment(Vector(0, 45, 0), Vector(0, 30, 0)),
    Part.LineSegment(Vector(0, 30, 0), Vector(2, 30, 0)),
    Part.Circle(Vector(40, 30, 0), Vector(0, 0, 1), 4.5),
], False)
sketch32.addConstraint([
    Sketcher.Constraint("Coincident", 0, 1, 1, 1),
    Sketcher.Constraint("Coincident", 1, 2, 2, 1),
    Sketcher.Constraint("Coincident", 2, 2, 3, 1),
    Sketcher.Constraint("Coincident", 3, 2, 4, 1),
    Sketcher.Constraint("Coincident", 4, 2, 5, 1),
    Sketcher.Constraint("Coincident", 5, 2, 6, 1),
    Sketcher.Constraint("Coincident", 6, 2, 7, 1),
    Sketcher.Constraint("Coincident", 7, 2, 0, 2),
    Sketcher.Constraint("Horizontal", 1),
    Sketcher.Constraint("Vertical", 2),
    Sketcher.Constraint("Horizontal", 3),
    Sketcher.Constraint("Vertical", 4),
    Sketcher.Constraint("Horizontal", 5),
    Sketcher.Constraint("Vertical", 6),
    Sketcher.Constraint("Horizontal", 7),
    Sketcher.Constraint("PointOnObject", 5, 2, -2),
    Sketcher.Constraint("Horizontal", 0, 3, 8, 3),
    Sketcher.Constraint("Horizontal", 8, 3, 0, 1),
    Sketcher.Constraint("Horizontal", 1, 2, 6, 2),
    Sketcher.Constraint("Diameter", 8, 9.0),
    Sketcher.Constraint("Radius", 0, 8.0),
    Sketcher.Constraint("DistanceX", 1, 1, 1, 2, 14.0),
    Sketcher.Constraint("DistanceX", 3, 1, 3, 2, 16.0),
    Sketcher.Constraint("DistanceX", 5, 2, 5, 1, 48.0),
    Sketcher.Constraint("DistanceY", 2, 2, 2, 1, 8.0),
    Sketcher.Constraint("DistanceY", 4, 1, 4, 2, 23.0),
    Sketcher.Constraint("DistanceY", -1, 1, 0, 3, 30.0),
    Sketcher.Constraint("DistanceX", -1, 1, 8, 3, 40.0),
])
pad32 = body68.newObject("PartDesign::Pad", "Pad031")
pad32.Profile = sketch32
pad32.Length = 120
doc.recompute()

boolean41 = body68.newObject("PartDesign::Boolean", "Boolean040")
boolean41.Type = "Cut"
boolean41.addObjects([body67])
doc.recompute()

boolean42 = body68.newObject("PartDesign::Boolean", "Boolean041")
boolean42.Type = "Cut"
boolean42.addObjects([body66])
doc.recompute()

boolean43 = body68.newObject("PartDesign::Boolean", "Boolean042")
boolean43.Type = "Cut"
boolean43.addObjects([body65])
doc.recompute()

boolean44 = body68.newObject("PartDesign::Boolean", "Boolean043")
boolean44.Type = "Cut"
boolean44.addObjects([body62])
doc.recompute()

boolean45 = body68.newObject("PartDesign::Boolean", "Boolean044")
boolean45.Type = "Cut"
boolean45.addObjects([body59])
doc.recompute()

boolean46 = body68.newObject("PartDesign::Boolean", "Boolean045")
boolean46.Type = "Cut"
boolean46.addObjects([body56])
doc.recompute()

boolean47 = body68.newObject("PartDesign::Boolean", "Boolean046")
boolean47.Type = "Fuse"
boolean47.addObjects([body50])
doc.recompute()

boolean48 = body68.newObject("PartDesign::Boolean", "Boolean047")
boolean48.Type = "Fuse"
boolean48.addObjects([body51])
doc.recompute()

boolean49 = body68.newObject("PartDesign::Boolean", "Boolean048")
boolean49.Type = "Fuse"
boolean49.addObjects([body52])
doc.recompute()

boolean50 = body68.newObject("PartDesign::Boolean", "Boolean049")
boolean50.Type = "Fuse"
boolean50.addObjects([body53])
doc.recompute()

boolean51 = body68.newObject("PartDesign::Boolean", "Boolean050")
boolean51.Type = "Cut"
boolean51.addObjects([body49])
doc.recompute()

boolean52 = body68.newObject("PartDesign::Boolean", "Boolean051")
boolean52.Type = "Fuse"
boolean52.addObjects([body27])
doc.recompute()

boolean53 = body68.newObject("PartDesign::Boolean", "Boolean052")
boolean53.Type = "Fuse"
boolean53.addObjects([body30])
doc.recompute()

boolean54 = body68.newObject("PartDesign::Boolean", "Boolean053")
boolean54.Type = "Fuse"
boolean54.addObjects([body33])
doc.recompute()

boolean55 = body68.newObject("PartDesign::Boolean", "Boolean054")
boolean55.Type = "Fuse"
boolean55.addObjects([body36])
doc.recompute()

boolean56 = body68.newObject("PartDesign::Boolean", "Boolean055")
boolean56.Type = "Fuse"
boolean56.addObjects([body39])
doc.recompute()

boolean57 = body68.newObject("PartDesign::Boolean", "Boolean056")
boolean57.Type = "Fuse"
boolean57.addObjects([body42])
doc.recompute()

boolean58 = body68.newObject("PartDesign::Boolean", "Boolean057")
boolean58.Type = "Fuse"
boolean58.addObjects([body45])
doc.recompute()

boolean59 = body68.newObject("PartDesign::Boolean", "Boolean058")
boolean59.Type = "Fuse"
boolean59.addObjects([body48])
doc.recompute()

boolean60 = body68.newObject("PartDesign::Boolean", "Boolean059")
boolean60.Type = "Cut"
boolean60.addObjects([body24])
doc.recompute()

boolean61 = body68.newObject("PartDesign::Boolean", "Boolean060")
boolean61.Type = "Cut"
boolean61.addObjects([body21])
doc.recompute()

boolean62 = body68.newObject("PartDesign::Boolean", "Boolean061")
boolean62.Type = "Cut"
boolean62.addObjects([body18])
doc.recompute()

boolean63 = body68.newObject("PartDesign::Boolean", "Boolean062")
boolean63.Type = "Cut"
boolean63.addObjects([body15])
doc.recompute()

boolean64 = body68.newObject("PartDesign::Boolean", "Boolean063")
boolean64.Type = "Cut"
boolean64.addObjects([body12])
doc.recompute()

boolean65 = body68.newObject("PartDesign::Boolean", "Boolean064")
boolean65.Type = "Cut"
boolean65.addObjects([body9])
doc.recompute()

boolean66 = body68.newObject("PartDesign::Boolean", "Boolean065")
boolean66.Type = "Cut"
boolean66.addObjects([body6])
doc.recompute()

boolean67 = body68.newObject("PartDesign::Boolean", "Boolean066")
boolean67.Type = "Cut"
boolean67.addObjects([body3])
doc.recompute()

chamfer = body68.newObject("PartDesign::Chamfer", "Chamfer")
chamfer.Base = (boolean67, edges_at(boolean67, [(32, 30, 60)]))
chamfer.Size = 4
doc.recompute()

chamfer2 = body68.newObject("PartDesign::Chamfer", "Chamfer001")
chamfer2.Base = (chamfer, edges_at(chamfer, [(48, 45, 60)]))
chamfer2.Size = 6
doc.recompute()

chamfer3 = body68.newObject("PartDesign::Chamfer", "Chamfer002")
chamfer3.Base = (chamfer2, edges_at(chamfer2, [(20, 37.5, 50), (20, 37.5, 70)]))
chamfer3.Size = 6
body69 = doc.addObject("PartDesign::Body", "Body068")
doc.recompute()

body68.Placement = App.Placement(Vector(0, 0, 0), App.Rotation(Vector(1, 0, 0), 270))
boolean68 = body69.newObject("PartDesign::Boolean", "Boolean067")
boolean68.Type = "Fuse"
boolean68.addObjects([body68])

doc.recompute()
